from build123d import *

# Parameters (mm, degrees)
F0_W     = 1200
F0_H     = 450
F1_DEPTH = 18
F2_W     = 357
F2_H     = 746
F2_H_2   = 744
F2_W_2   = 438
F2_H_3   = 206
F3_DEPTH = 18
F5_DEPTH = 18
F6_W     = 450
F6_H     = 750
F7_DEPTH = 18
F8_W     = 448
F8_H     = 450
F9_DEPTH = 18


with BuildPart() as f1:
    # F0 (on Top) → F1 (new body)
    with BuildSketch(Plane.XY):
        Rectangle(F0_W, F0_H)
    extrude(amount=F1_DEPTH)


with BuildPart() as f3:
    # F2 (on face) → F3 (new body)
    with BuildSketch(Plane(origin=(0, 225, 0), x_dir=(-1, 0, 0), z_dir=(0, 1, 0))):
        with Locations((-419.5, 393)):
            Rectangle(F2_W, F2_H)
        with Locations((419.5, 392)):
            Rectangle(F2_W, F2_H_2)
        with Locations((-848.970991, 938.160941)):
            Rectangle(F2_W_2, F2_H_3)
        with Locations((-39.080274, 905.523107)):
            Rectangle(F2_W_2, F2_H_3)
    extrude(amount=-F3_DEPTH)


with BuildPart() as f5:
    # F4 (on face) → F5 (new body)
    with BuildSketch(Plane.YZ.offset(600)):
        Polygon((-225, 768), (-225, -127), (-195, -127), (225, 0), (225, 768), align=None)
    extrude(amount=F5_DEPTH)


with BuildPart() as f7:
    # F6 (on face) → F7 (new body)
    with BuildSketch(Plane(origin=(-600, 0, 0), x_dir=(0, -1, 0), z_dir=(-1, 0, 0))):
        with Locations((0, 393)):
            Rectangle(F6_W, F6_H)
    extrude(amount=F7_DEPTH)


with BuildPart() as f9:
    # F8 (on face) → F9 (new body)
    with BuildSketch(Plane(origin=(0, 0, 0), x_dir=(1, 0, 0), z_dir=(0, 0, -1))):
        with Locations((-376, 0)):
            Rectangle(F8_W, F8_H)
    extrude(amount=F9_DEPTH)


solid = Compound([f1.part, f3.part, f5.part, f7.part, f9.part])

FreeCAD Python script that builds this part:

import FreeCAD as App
import Part
import Sketcher

V = App.Vector
Q = App.Units.Quantity


def add_polygon(sketch, points):
    """Adds a closed chain of lines whose ends are joined by coincident constraints."""
    first, n = sketch.GeometryCount, len(points)
    for a, b in zip(points, points[1:] + points[:1]):
        sketch.addGeometry(Part.LineSegment(App.Vector(*a, 0), App.Vector(*b, 0)), False)
    for i in range(n):
        sketch.addConstraint(Sketcher.Constraint("Coincident", first + i, 2, first + (i + 1) % n, 1))

doc = App.newDocument("Part")
body = doc.addObject("PartDesign::Body", "Body")

# Sketch on XY plane
sketch1 = body.newObject("Sketcher::SketchObject", "Sketch")
sketch1.AttachmentSupport = (doc.getObject("XY_Plane"), [""])
sketch1.MapMode = "FlatFace"
add_polygon(sketch1, [(-600, 225), (-600, -225), (600, -225), (600, 225)])  # lines 0-3
sketch1.addConstraint([
    Sketcher.Constraint("Vertical", 0),
    Sketcher.Constraint("Horizontal", 1),
    Sketcher.Constraint("Vertical", 2),
    Sketcher.Constraint("Horizontal", 3),
    Sketcher.Constraint("Symmetric", 0, 2, 2, 2, -1, 1),
    Sketcher.Constraint("DistanceX", 1, 1, 1, 2, Q("1200 mm")),
    Sketcher.Constraint("DistanceY", 0, 2, 0, 1, Q("450 mm")),
])
pad1 = body.newObject("PartDesign::Pad", "Pad")
pad1.Profile = sketch1
pad1.Length = 18
body2 = doc.addObject("PartDesign::Body", "Body001")
body2.AllowCompound = True

# Sketch on XZ plane
sketch2 = body2.newObject("Sketcher::SketchObject", "Sketch001")
sketch2.AttachmentSupport = (doc.getObject("XZ_Plane001"), [""])
sketch2.MapMode = "FlatFace"
sketch2.AttachmentOffset = App.Placement(V(0, 0, -225), App.Rotation())
add_polygon(sketch2, [(598, 766), (598, 20), (241, 20), (241, 766)])  # lines 0-3
add_polygon(sketch2, [(-241, 764), (-241, 20), (-598, 20), (-598, 764)])  # lines 4-7
add_polygon(sketch2, [(1067.970991, 1041.160941), (1067.970991, 835.160941), (629.970991, 835.160941), (629.970991, 1041.160941)])  # lines 8-11
add_polygon(sketch2, [(258.080274, 1008.523107), (258.080274, 802.523107), (-179.919726, 802.523107), (-179.919726, 1008.523107)])  # lines 12-15
sketch2.addConstraint([
    Sketcher.Constraint("Vertical", 0),
    Sketcher.Constraint("Horizontal", 1),
    Sketcher.Constraint("Vertical", 2),
    Sketcher.Constraint("Horizontal", 3),
    Sketcher.Constraint("Vertical", 4),
    Sketcher.Constraint("Horizontal", 5),
    Sketcher.Constraint("Vertical", 6),
    Sketcher.Constraint("Horizontal", 7),
    Sketcher.Constraint("Vertical", 8),
    Sketcher.Constraint("Horizontal", 9),
    Sketcher.Constraint("Vertical", 10),
    Sketcher.Constraint("Horizontal", 11),
    Sketcher.Constraint("Vertical", 12),
    Sketcher.Constraint("Horizontal", 13),
    Sketcher.Constraint("Vertical", 14),
    Sketcher.Constraint("Horizontal", 15),
    Sketcher.Constraint("Symmetric", 1, 2, 4, 2, -2),
    Sketcher.Constraint("Equal", 3, 5),
    Sketcher.Constraint("Equal", 11, 13),
    Sketcher.Constraint("Equal", 10, 12),
    Sketcher.Constraint("DistanceX", 1, 2, 1, 1, Q("357 mm")),
    Sketcher.Constraint("DistanceX", 9, 2, 9, 1, Q("438 mm")),
    Sketcher.Constraint("DistanceY", 0, 2, 0, 1, Q("746 mm")),
    Sketcher.Constraint("DistanceY", 4, 2, 4, 1, Q("744 mm")),
    Sketcher.Constraint("DistanceY", 8, 2, 8, 1, Q("206 mm")),
    Sketcher.Constraint("DistanceX", -1, 1, 0, 2, Q("598 mm")),
    Sketcher.Constraint("DistanceY", -1, 1, 0, 2, Q("20 mm")),
    Sketcher.Constraint("DistanceX", -1, 1, 8, 2, Q("1067.970991 mm")),
    Sketcher.Constraint("DistanceY", -1, 1, 8, 2, Q("835.160941 mm")),
    Sketcher.Constraint("DistanceX", -1, 1, 12, 2, Q("258.080274 mm")),
    Sketcher.Constraint("DistanceY", -1, 1, 12, 2, Q("802.523107 mm")),
])
pad2 = body2.newObject("PartDesign::Pad", "Pad001")
pad2.Profile = sketch2
pad2.Length = 18
body3 = doc.addObject("PartDesign::Body", "Body002")

# Sketch on YZ plane
sketch3 = body3.newObject("Sketcher::SketchObject", "Sketch002")
sketch3.AttachmentSupport = (doc.getObject("YZ_Plane002"), [""])
sketch3.MapMode = "FlatFace"
sketch3.AttachmentOffset = App.Placement(V(0, 0, 600), App.Rotation())
add_polygon(sketch3, [(-225, 768), (-225, -127), (-195, -127), (225, 0), (225, 768)])  # lines 0-4
sketch3.addConstraint([
    Sketcher.Constraint("Vertical", 0),
    Sketcher.Constraint("Horizontal", 1),
    Sketcher.Constraint("Vertical", 3),
    Sketcher.Constraint("Horizontal", 4),
    Sketcher.Constraint("PointOnObject", 2, 2, -1),
    Sketcher.Constraint("DistanceX", 1, 1, 1, 2, Q("30 mm")),
    Sketcher.Constraint("DistanceX", 4, 2, 4, 1, Q("450 mm")),
    Sketcher.Constraint("DistanceY", 0, 2, 0, 1, Q("895 mm")),
    Sketcher.Constraint("DistanceY", 3, 1, 3, 2, Q("768 mm")),
    Sketcher.Constraint("DistanceX", 0, 2, -1, 1, Q("225 mm")),
])
pad3 = body3.newObject("PartDesign::Pad", "Pad002")
pad3.Profile = sketch3
pad3.Length = 18
body4 = doc.addObject("PartDesign::Body", "Body003")

# Sketch on YZ plane
sketch4 = body4.newObject("Sketcher::SketchObject", "Sketch003")
sketch4.AttachmentSupport = (doc.getObject("YZ_Plane003"), [""])
sketch4.MapMode = "FlatFace"
sketch4.AttachmentOffset = App.Placement(V(0, 0, -600), App.Rotation())
add_polygon(sketch4, [(225, 768), (225, 18), (-225, 18), (-225, 768)])  # lines 0-3
sketch4.addConstraint([
    Sketcher.Constraint("Vertical", 0),
    Sketcher.Constraint("Horizontal", 1),
    Sketcher.Constraint("Vertical", 2),
    Sketcher.Constraint("Horizontal", 3),
    Sketcher.Constraint("DistanceX", 1, 2, 1, 1, Q("450 mm")),
    Sketcher.Constraint("DistanceY", 0, 2, 0, 1, Q("750 mm")),
    Sketcher.Constraint("DistanceX", -1, 1, 0, 2, Q("225 mm")),
    Sketcher.Constraint("DistanceY", -1, 1, 0, 2, Q("18 mm")),
])
pad4 = body4.newObject("PartDesign::Pad", "Pad003")
pad4.Profile = sketch4
pad4.Length = 18
pad4.Reversed = True
body5 = doc.addObject("PartDesign::Body", "Body004")

# Sketch on XY plane
sketch5 = body5.newObject("Sketcher::SketchObject", "Sketch004")
sketch5.AttachmentSupport = (doc.getObject("XY_Plane004"), [""])
sketch5.MapMode = "FlatFace"
add_polygon(sketch5, [(-600, -225), (-600, 225), (-152, 225), (-152, -225)])  # lines 0-3
sketch5.addConstraint([
    Sketcher.Constraint("Vertical", 0),
    Sketcher.Constraint("Horizontal", 1),
    Sketcher.Constraint("Vertical", 2),
    Sketcher.Constraint("Horizontal", 3),
    Sketcher.Constraint("DistanceX", 1, 1, 1, 2, Q("448 mm")),
    Sketcher.Constraint("DistanceY", 0, 1, 0, 2, Q("450 mm")),
    Sketcher.Constraint("DistanceX", 0, 2, -1, 1, Q("600 mm")),
    Sketcher.Constraint("DistanceY", -1, 1, 0, 2, Q("225 mm")),
])
pad5 = body5.newObject("PartDesign::Pad", "Pad004")
pad5.Profile = sketch5
pad5.Length = 18
pad5.Reversed = True

doc.recompute()
